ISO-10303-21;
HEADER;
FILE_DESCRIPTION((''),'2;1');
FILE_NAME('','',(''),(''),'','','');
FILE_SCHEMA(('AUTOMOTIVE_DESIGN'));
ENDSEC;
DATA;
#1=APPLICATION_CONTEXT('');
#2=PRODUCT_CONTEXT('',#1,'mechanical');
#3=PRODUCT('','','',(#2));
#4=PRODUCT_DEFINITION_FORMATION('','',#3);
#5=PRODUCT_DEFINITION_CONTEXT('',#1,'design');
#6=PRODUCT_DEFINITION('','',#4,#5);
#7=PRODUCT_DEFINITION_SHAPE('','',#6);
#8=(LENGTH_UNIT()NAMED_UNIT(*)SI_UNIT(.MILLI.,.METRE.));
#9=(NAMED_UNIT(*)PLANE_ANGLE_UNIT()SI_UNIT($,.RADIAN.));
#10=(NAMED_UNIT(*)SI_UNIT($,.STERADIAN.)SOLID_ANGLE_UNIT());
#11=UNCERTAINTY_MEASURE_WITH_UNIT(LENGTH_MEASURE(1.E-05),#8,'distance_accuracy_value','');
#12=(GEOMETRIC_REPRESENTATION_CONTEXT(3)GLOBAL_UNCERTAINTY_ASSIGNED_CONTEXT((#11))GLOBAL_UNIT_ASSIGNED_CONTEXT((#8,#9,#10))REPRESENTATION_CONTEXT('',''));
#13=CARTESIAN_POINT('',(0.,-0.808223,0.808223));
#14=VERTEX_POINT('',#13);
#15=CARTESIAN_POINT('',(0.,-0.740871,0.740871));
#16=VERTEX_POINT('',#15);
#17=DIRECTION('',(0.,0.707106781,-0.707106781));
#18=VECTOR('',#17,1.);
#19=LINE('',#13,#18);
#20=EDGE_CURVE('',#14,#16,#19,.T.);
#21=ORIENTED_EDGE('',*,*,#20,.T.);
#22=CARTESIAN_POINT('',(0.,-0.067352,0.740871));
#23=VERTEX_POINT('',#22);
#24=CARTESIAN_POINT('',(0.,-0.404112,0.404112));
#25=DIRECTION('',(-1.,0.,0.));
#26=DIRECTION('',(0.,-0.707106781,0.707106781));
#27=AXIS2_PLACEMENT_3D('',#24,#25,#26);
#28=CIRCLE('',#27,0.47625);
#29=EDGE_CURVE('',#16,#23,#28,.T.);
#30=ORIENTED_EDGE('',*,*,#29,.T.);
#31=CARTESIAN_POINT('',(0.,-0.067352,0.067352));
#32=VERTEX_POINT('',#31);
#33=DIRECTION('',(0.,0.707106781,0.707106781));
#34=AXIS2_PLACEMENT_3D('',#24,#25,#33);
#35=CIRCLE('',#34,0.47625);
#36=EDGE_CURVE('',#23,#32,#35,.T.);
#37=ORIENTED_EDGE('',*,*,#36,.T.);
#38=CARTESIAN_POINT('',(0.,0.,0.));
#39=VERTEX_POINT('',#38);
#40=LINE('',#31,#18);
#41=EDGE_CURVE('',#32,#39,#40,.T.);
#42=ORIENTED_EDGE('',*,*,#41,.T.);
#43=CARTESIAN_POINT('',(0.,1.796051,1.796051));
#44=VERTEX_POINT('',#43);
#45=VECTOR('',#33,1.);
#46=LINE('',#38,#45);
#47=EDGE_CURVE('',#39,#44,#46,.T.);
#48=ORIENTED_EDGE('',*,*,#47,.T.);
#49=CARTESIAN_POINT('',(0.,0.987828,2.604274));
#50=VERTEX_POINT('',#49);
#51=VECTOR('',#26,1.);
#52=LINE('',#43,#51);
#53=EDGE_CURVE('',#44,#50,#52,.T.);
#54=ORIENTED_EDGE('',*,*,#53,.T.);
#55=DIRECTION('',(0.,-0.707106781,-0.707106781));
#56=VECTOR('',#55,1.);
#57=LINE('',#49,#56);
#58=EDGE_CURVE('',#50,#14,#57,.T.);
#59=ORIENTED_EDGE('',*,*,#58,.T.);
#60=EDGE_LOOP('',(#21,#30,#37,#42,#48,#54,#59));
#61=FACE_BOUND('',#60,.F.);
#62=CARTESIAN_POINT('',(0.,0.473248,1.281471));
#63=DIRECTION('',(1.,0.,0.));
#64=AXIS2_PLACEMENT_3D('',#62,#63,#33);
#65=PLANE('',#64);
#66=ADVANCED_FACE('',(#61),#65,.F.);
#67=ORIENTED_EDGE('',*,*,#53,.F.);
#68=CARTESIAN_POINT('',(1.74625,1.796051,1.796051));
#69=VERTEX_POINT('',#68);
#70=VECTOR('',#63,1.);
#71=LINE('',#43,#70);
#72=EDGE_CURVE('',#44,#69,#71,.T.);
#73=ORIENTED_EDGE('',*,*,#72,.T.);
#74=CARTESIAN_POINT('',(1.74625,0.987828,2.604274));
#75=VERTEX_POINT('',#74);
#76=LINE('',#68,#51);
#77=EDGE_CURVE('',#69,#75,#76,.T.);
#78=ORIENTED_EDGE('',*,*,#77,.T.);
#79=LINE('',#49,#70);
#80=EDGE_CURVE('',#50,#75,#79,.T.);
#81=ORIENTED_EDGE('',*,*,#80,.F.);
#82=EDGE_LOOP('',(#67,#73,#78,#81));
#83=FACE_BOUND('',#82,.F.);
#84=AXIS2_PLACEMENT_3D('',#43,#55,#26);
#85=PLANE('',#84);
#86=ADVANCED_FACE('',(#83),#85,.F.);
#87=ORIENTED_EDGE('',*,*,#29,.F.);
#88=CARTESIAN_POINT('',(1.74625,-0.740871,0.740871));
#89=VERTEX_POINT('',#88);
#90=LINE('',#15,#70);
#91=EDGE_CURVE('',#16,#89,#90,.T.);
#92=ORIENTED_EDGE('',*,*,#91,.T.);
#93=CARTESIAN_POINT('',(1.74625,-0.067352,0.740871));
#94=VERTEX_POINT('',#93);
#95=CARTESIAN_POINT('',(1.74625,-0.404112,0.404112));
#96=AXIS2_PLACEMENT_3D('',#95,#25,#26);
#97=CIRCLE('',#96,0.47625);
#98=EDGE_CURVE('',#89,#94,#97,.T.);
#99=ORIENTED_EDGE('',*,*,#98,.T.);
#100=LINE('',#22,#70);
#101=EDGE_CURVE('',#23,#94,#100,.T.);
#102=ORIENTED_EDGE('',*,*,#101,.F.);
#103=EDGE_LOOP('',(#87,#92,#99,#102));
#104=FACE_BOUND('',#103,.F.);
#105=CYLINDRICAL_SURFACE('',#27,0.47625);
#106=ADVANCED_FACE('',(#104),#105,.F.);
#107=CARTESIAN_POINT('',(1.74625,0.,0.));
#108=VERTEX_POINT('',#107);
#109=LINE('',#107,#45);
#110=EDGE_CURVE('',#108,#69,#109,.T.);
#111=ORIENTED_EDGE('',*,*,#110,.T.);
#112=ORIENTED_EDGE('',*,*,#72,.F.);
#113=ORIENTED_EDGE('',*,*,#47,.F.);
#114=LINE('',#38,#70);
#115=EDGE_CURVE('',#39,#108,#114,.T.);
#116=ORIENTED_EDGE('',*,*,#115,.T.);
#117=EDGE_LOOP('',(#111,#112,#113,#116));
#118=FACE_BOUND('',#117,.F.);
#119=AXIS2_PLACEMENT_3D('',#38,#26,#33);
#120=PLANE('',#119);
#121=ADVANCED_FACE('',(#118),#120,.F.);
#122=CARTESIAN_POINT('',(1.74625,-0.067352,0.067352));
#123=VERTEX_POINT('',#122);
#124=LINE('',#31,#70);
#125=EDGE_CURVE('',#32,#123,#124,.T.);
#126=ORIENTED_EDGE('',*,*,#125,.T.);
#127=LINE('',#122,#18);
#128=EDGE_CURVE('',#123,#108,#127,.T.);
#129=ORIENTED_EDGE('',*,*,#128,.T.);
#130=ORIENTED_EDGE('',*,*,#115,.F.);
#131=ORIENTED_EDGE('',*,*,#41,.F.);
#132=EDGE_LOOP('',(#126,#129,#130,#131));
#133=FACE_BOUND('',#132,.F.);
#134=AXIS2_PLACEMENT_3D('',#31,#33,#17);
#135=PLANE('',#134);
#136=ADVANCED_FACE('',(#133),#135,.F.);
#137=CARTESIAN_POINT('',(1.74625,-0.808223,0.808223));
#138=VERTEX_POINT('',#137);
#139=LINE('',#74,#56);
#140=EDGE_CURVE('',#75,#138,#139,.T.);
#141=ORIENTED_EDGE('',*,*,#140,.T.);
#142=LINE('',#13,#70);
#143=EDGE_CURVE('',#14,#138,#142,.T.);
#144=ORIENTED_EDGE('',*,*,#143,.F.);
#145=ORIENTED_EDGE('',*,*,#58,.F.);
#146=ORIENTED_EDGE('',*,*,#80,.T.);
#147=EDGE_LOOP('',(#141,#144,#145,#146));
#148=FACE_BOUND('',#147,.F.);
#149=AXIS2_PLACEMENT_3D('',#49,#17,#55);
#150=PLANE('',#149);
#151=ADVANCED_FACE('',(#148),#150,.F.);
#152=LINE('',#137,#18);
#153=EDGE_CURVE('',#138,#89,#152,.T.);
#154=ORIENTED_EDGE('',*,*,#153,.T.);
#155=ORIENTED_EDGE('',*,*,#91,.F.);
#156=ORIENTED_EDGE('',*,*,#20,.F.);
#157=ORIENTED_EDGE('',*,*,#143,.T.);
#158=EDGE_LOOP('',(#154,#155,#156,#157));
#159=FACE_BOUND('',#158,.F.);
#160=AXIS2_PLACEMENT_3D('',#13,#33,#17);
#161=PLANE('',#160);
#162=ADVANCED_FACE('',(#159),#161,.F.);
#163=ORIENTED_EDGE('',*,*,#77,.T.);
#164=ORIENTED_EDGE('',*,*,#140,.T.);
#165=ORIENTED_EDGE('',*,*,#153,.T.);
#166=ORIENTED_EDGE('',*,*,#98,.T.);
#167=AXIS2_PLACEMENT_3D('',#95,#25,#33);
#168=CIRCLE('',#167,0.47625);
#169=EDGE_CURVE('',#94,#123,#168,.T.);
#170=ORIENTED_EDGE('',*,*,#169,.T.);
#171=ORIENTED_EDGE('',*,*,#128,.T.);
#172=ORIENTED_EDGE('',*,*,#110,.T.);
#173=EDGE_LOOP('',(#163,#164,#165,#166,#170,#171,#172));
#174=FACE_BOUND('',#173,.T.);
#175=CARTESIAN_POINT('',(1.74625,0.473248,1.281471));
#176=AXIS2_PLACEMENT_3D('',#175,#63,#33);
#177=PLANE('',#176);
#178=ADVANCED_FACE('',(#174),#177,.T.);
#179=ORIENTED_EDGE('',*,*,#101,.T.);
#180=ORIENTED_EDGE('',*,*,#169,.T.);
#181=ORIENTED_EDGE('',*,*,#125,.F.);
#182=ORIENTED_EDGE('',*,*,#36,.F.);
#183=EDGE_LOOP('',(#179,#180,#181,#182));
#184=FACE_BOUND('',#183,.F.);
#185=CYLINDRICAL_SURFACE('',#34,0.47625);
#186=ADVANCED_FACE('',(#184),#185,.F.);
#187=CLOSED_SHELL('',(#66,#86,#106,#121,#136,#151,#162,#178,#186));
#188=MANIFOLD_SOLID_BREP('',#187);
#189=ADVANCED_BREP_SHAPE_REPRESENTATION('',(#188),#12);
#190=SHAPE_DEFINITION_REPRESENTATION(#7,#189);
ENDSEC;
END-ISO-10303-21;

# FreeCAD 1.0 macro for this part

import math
import FreeCAD as App
import Part
import Sketcher
from FreeCAD import Vector
Q = App.Units.Quantity

doc = App.newDocument("Part")
params = doc.addObject("Spreadsheet::Sheet", "Params")
for row, (alias, value) in enumerate([
    ("sketch1_width", "0.1 in"),
    ("sketch1_height", "0.045 in"),
    ("pad1_length", "1.74625 mm"),
], start=1):
    params.set(f"A{row}", alias)
    params.set(f"B{row}", "=" + value)
    params.setAlias(f"B{row}", alias)

body = doc.addObject("PartDesign::Body", "Body")

sketch1 = body.newObject("Sketcher::SketchObject", "Sketch")
sketch1.AttachmentSupport = (doc.getObject("YZ_Plane"), [""])
sketch1.MapMode = "FlatFace"
sketch1.addGeometry([
    Part.LineSegment(Vector(0, 0.09525, 0), Vector(0, 0, 0)),
    Part.LineSegment(Vector(0, 0, 0), Vector(2.54, 0, 0)),
    Part.LineSegment(Vector(2.54, 0, 0), Vector(2.54, 1.143, 0)),
    Part.LineSegment(Vector(2.54, 1.143, 0), Vector(0, 1.143, 0)),
    Part.LineSegment(Vector(0, 1.143, 0), Vector(0, 1.04775, 0)),
    Part.ArcOfCircle(Part.Circle(Vector(0, 0.5715, 0), Vector(0, 0, 1), 0.47625), math.radians(0), math.radians(90)),
    Part.ArcOfCircle(Part.Circle(Vector(0, 0.5715, 0), Vector(0, 0, 1), 0.47625), math.radians(-90), math.radians(0)),
], False)
sketch1.addConstraint([
    Sketcher.Constraint("Coincident", 0, 2, 1, 1),
    Sketcher.Constraint("Coincident", 1, 2, 2, 1),
    Sketcher.Constraint("Coincident", 2, 2, 3, 1),
    Sketcher.Constraint("Coincident", 3, 2, 4, 1),
    Sketcher.Constraint("Coincident", 4, 2, 5, 2),
    Sketcher.Constraint("Tangent", 5, 1, 6, 2),
    Sketcher.Constraint("Coincident", 6, 1, 0, 1),
    Sketcher.Constraint("Vertical", 0),
    Sketcher.Constraint("Horizontal", 1),
    Sketcher.Constraint("Vertical", 2),
    Sketcher.Constraint("Horizontal", 3),
    Sketcher.Constraint("Vertical", 4),
    Sketcher.Constraint("Coincident", 0, 2, -1, 1),
    Sketcher.Constraint("Equal", 5, 6),
    Sketcher.Constraint("PointOnObject", 5, 3, -2),
    Sketcher.Constraint("PointOnObject", 3, 2, -2),
    Sketcher.Constraint("Horizontal", 6, 3, 5, 1),
    Sketcher.Constraint("Equal", 0, 4),
    Sketcher.Constraint("DistanceX", 1, 1, 1, 2, Q("0.1 in")),
    Sketcher.Constraint("DistanceY", 2, 1, 2, 2, Q("0.045 in")),
    Sketcher.Constraint("Radius", 5, 0.47625),
])
sketch1.setExpression("Constraints[18]", "Params.sketch1_width")
sketch1.setExpression("Constraints[19]", "Params.sketch1_height")
pad1 = body.newObject("PartDesign::Pad", "Pad")
pad1.Profile = sketch1
pad1.setExpression("Length", "Params.pad1_length")
body2 = doc.addObject("PartDesign::Body", "Body001")
doc.recompute()

body.Placement = App.Placement(Vector(0, 0, 0), App.Rotation(Vector(-1, 0, 0), 315))
boolean = body2.newObject("PartDesign::Boolean", "Boolean")
boolean.Type = "Fuse"
boolean.addObjects([body])

doc.recompute()
